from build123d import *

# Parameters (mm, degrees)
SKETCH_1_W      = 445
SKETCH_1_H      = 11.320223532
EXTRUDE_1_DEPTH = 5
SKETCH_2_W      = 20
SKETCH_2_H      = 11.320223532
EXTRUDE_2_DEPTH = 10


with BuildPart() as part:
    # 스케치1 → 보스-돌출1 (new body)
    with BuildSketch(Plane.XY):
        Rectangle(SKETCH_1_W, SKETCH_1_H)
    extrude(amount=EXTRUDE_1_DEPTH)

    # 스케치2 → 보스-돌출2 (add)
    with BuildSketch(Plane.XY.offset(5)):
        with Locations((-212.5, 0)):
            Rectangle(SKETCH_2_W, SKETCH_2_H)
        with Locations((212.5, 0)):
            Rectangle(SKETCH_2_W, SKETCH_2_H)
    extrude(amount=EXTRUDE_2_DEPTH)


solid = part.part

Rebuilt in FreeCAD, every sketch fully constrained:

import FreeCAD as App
import Part
import Sketcher
from FreeCAD import Vector
Q = App.Units.Quantity


def add_polygon(sketch, points):
    """Adds a closed chain of lines whose ends are joined by coincident constraints."""
    first, n = sketch.GeometryCount, len(points)
    for a, b in zip(points, points[1:] + points[:1]):
        sketch.addGeometry(Part.LineSegment(App.Vector(*a, 0), App.Vector(*b, 0)), False)
    for i in range(n):
        sketch.addConstraint(Sketcher.Constraint("Coincident", first + i, 2, first + (i + 1) % n, 1))

doc = App.newDocument("Part")
body = doc.addObject("PartDesign::Body", "Body")

# Sketch on XY plane
sketch1 = body.newObject("Sketcher::SketchObject", "Sketch")
sketch1.AttachmentSupport = (doc.getObject("XY_Plane"), [""])
sketch1.MapMode = "FlatFace"
add_polygon(sketch1, [(-222.5, 5.660112), (-222.5, -5.660112), (222.5, -5.660112), (222.5, 5.660112)])  # lines 0-3
sketch1.addConstraint([
    Sketcher.Constraint("Vertical", 0),
    Sketcher.Constraint("Horizontal", 1),
    Sketcher.Constraint("Vertical", 2),
    Sketcher.Constraint("Horizontal", 3),
    Sketcher.Constraint("Symmetric", 0, 2, 2, 2, -1, 1),
    Sketcher.Constraint("DistanceX", 1, 1, 1, 2, Q("445 mm")),
    Sketcher.Constraint("DistanceY", 0, 2, 0, 1, Q("11.320224 mm")),
])
pad1 = body.newObject("PartDesign::Pad", "Pad")
pad1.Profile = sketch1
pad1.Length = 5

# Sketch on XY plane
sketch2 = body.newObject("Sketcher::SketchObject", "Sketch001")
sketch2.AttachmentSupport = (doc.getObject("XY_Plane"), [""])
sketch2.MapMode = "FlatFace"
sketch2.AttachmentOffset = App.Placement(Vector(0, 0, 5), App.Rotation())
add_polygon(sketch2, [(-222.5, 5.660112), (-222.5, -5.660112), (-202.5, -5.660112), (-202.5, 5.660112)])  # lines 0-3
add_polygon(sketch2, [(202.5, 5.660112), (202.5, -5.660112), (222.5, -5.660112), (222.5, 5.660112)])  # lines 4-7
sketch2.addConstraint([
    Sketcher.Constraint("Vertical", 0),
    Sketcher.Constraint("Horizontal", 1),
    Sketcher.Constraint("Vertical", 2),
    Sketcher.Constraint("Horizontal", 3),
    Sketcher.Constraint("Vertical", 4),
    Sketcher.Constraint("Horizontal", 5),
    Sketcher.Constraint("Vertical", 6),
    Sketcher.Constraint("Horizontal", 7),
    Sketcher.Constraint("Symmetric", 2, 2, 4, 2, -1, 1),
    Sketcher.Constraint("Symmetric", 0, 2, 6, 2, -1, 1),
    Sketcher.Constraint("Horizontal", 1, 2, 4, 2),
    Sketcher.Constraint("DistanceX", 1, 1, 1, 2, Q("20 mm")),
    Sketcher.Constraint("DistanceX", 1, 2, 4, 2, Q("405 mm")),
    Sketcher.Constraint("DistanceY", 0, 2, 0, 1, Q("11.320224 mm")),
])
pad2 = body.newObject("PartDesign::Pad", "Pad001")
pad2.Profile = sketch2
pad2.Length = 10

doc.recompute()
